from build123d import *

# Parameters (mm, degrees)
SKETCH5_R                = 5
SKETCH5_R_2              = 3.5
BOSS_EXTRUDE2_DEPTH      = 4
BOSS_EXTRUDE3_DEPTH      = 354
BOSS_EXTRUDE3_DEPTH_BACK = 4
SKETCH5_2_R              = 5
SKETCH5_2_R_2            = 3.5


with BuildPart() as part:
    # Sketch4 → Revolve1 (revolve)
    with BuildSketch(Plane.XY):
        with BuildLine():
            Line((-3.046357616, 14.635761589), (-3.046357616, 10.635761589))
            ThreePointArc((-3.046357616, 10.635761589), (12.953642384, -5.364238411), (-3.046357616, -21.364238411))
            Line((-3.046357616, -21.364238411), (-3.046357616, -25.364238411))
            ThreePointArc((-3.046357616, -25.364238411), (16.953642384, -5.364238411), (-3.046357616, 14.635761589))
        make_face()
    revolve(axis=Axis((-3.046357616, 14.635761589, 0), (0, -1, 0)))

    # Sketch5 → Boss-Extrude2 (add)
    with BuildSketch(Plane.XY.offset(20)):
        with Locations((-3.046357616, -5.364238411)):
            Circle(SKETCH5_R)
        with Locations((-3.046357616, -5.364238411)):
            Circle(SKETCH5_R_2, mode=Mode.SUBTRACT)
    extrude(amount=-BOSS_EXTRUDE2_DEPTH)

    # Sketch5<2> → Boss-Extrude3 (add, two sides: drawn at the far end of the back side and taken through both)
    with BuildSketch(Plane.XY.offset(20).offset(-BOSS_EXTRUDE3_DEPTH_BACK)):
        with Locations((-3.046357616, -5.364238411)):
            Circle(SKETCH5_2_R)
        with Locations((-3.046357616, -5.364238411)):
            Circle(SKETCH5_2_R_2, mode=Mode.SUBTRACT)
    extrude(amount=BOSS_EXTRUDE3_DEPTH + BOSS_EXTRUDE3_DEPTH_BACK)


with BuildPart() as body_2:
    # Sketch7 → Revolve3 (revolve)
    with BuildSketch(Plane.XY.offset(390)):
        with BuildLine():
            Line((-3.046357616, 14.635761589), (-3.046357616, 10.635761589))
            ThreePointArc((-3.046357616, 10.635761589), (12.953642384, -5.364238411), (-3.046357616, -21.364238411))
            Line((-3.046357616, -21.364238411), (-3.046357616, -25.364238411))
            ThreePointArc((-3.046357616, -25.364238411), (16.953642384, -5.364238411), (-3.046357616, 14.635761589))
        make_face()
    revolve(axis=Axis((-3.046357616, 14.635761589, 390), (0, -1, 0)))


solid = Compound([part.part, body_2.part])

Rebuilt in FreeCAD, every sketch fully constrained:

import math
import FreeCAD as App
import Part
import Sketcher
from FreeCAD import Vector
Q = App.Units.Quantity

doc = App.newDocument("Part")
params = doc.addObject("Spreadsheet::Sheet", "Params")
for row, (alias, value) in enumerate([
    ("sketch1_radius", "16 mm"),
    ("sketch1_radius2", "20 mm"),
    ("revolution_angle", "360 deg"),
    ("sketch2_diameter", "10 mm"),
    ("sketch2_diameter2", "7 mm"),
    ("pad1_length", "4 mm"),
    ("sketch3_diameter", "10 mm"),
    ("sketch3_diameter2", "7 mm"),
    ("pad2_length", "354 mm"),
    ("pad2_length2", "4 mm"),
    ("sketch4_radius", "16 mm"),
    ("sketch4_radius2", "20 mm"),
    ("revolution2_angle", "360 deg"),
], start=1):
    params.set(f"A{row}", alias)
    params.set(f"B{row}", "=" + value)
    params.setAlias(f"B{row}", alias)

body = doc.addObject("PartDesign::Body", "Body")

sketch1 = doc.addObject("Sketcher::SketchObject", "Sketch")
body.addObject(sketch1)
sketch1.AttachmentSupport = (doc.XY_Plane, [""])
sketch1.MapMode = "FlatFace"
sketch1.addGeometry([
    Part.LineSegment(Vector(-3.046358, 14.635762, 0), Vector(-3.046358, 10.635762, 0)),
    Part.ArcOfCircle(Part.Circle(Vector(-3.046358, -5.364238, 0), Vector(0, 0, 1), 16), math.radians(-90), math.radians(90)),
    Part.LineSegment(Vector(-3.046358, -21.364238, 0), Vector(-3.046358, -25.364238, 0)),
    Part.ArcOfCircle(Part.Circle(Vector(-3.046358, -5.364238, 0), Vector(0, 0, 1), 20), math.radians(-90), math.radians(90)),
], False)
sketch1.addGeometry(Part.LineSegment(Vector(-3.046358, 14.635762, 0), Vector(-3.046358, -25.364238, 0)), True)
sketch1.addConstraint([
    Sketcher.Constraint("Coincident", 0, 2, 1, 2),
    Sketcher.Constraint("Coincident", 1, 1, 2, 1),
    Sketcher.Constraint("Coincident", 2, 2, 3, 1),
    Sketcher.Constraint("Coincident", 3, 2, 0, 1),
    Sketcher.Constraint("Vertical", 0),
    Sketcher.Constraint("Vertical", 2),
    Sketcher.Constraint("Vertical", 4),
    Sketcher.Constraint("Coincident", 3, 3, 1, 3),
    Sketcher.Constraint("Coincident", 4, 1, 3, 2),
    Sketcher.Constraint("Coincident", 4, 2, 2, 2),
    Sketcher.Constraint("Vertical", 3, 3, 0, 2),
    Sketcher.Constraint("Radius", 1, Q("16 mm")),
    Sketcher.Constraint("Radius", 3, Q("20 mm")),
    Sketcher.Constraint("DistanceY", 1, 3, -1, 1, Q("5.364238 mm")),
    Sketcher.Constraint("DistanceX", 1, 3, -1, 1, Q("3.046358 mm")),
])
sketch1.setExpression("Constraints[11]", "Params.sketch1_radius")
sketch1.setExpression("Constraints[12]", "Params.sketch1_radius2")
revolution = doc.addObject("PartDesign::Revolution", "Revolution")
body.addObject(revolution)
revolution.Profile = sketch1
revolution.ReferenceAxis = (sketch1, ["Axis0"])
revolution.setExpression("Angle", "Params.revolution_angle")

sketch2 = doc.addObject("Sketcher::SketchObject", "Sketch001")
body.addObject(sketch2)
sketch2.AttachmentSupport = (doc.XY_Plane, [""])
sketch2.MapMode = "FlatFace"
sketch2.AttachmentOffset = App.Placement(Vector(0, 0, 20), App.Rotation())
sketch2.addGeometry([
    Part.Circle(Vector(-3.046358, -5.364238, 0), Vector(0, 0, 1), 5),
    Part.Circle(Vector(-3.046358, -5.364238, 0), Vector(0, 0, 1), 3.5),
], False)
sketch2.addConstraint([
    Sketcher.Constraint("Coincident", 1, 3, 0, 3),
    Sketcher.Constraint("Diameter", 0, Q("10 mm")),
    Sketcher.Constraint("Diameter", 1, Q("7 mm")),
    Sketcher.Constraint("DistanceY", 0, 3, -1, 1, Q("5.364238 mm")),
    Sketcher.Constraint("DistanceX", 0, 3, -1, 1, Q("3.046358 mm")),
])
sketch2.setExpression("Constraints[1]", "Params.sketch2_diameter")
sketch2.setExpression("Constraints[2]", "Params.sketch2_diameter2")
pad1 = doc.addObject("PartDesign::Pad", "Pad")
body.addObject(pad1)
pad1.Profile = sketch2
pad1.setExpression("Length", "Params.pad1_length")
pad1.Reversed = True

sketch3 = doc.addObject("Sketcher::SketchObject", "Sketch002")
body.addObject(sketch3)
sketch3.AttachmentSupport = (doc.XY_Plane, [""])
sketch3.MapMode = "FlatFace"
sketch3.AttachmentOffset = App.Placement(Vector(0, 0, 20), App.Rotation())
sketch3.addGeometry([
    Part.Circle(Vector(-3.046358, -5.364238, 0), Vector(0, 0, 1), 5),
    Part.Circle(Vector(-3.046358, -5.364238, 0), Vector(0, 0, 1), 3.5),
], False)
sketch3.addConstraint([
    Sketcher.Constraint("Coincident", 1, 3, 0, 3),
    Sketcher.Constraint("Diameter", 0, Q("10 mm")),
    Sketcher.Constraint("Diameter", 1, Q("7 mm")),
    Sketcher.Constraint("DistanceY", 0, 3, -1, 1, Q("5.364238 mm")),
    Sketcher.Constraint("DistanceX", 0, 3, -1, 1, Q("3.046358 mm")),
])
sketch3.setExpression("Constraints[1]", "Params.sketch3_diameter")
sketch3.setExpression("Constraints[2]", "Params.sketch3_diameter2")
pad2 = doc.addObject("PartDesign::Pad", "Pad001")
body.addObject(pad2)
pad2.Profile = sketch3
pad2.Type = "TwoLengths"
pad2.setExpression("Length", "Params.pad2_length")
pad2.setExpression("Length2", "Params.pad2_length2")
body2 = doc.addObject("PartDesign::Body", "Body001")

sketch4 = doc.addObject("Sketcher::SketchObject", "Sketch003")
body2.addObject(sketch4)
sketch4.AttachmentSupport = (doc.getObject("XY_Plane001"), [""])
sketch4.MapMode = "FlatFace"
sketch4.AttachmentOffset = App.Placement(Vector(0, 0, 390), App.Rotation())
sketch4.addGeometry([
    Part.LineSegment(Vector(-3.046358, 14.635762, 0), Vector(-3.046358, 10.635762, 0)),
    Part.ArcOfCircle(Part.Circle(Vector(-3.046358, -5.364238, 0), Vector(0, 0, 1), 16), math.radians(-90), math.radians(90)),
    Part.LineSegment(Vector(-3.046358, -21.364238, 0), Vector(-3.046358, -25.364238, 0)),
    Part.ArcOfCircle(Part.Circle(Vector(-3.046358, -5.364238, 0), Vector(0, 0, 1), 20), math.radians(-90), math.radians(90)),
], False)
sketch4.addGeometry(Part.LineSegment(Vector(-3.046358, 14.635762, 0), Vector(-3.046358, -25.364238, 0)), True)
sketch4.addConstraint([
    Sketcher.Constraint("Coincident", 0, 2, 1, 2),
    Sketcher.Constraint("Coincident", 1, 1, 2, 1),
    Sketcher.Constraint("Coincident", 2, 2, 3, 1),
    Sketcher.Constraint("Coincident", 3, 2, 0, 1),
    Sketcher.Constraint("Vertical", 0),
    Sketcher.Constraint("Vertical", 2),
    Sketcher.Constraint("Vertical", 4),
    Sketcher.Constraint("Coincident", 3, 3, 1, 3),
    Sketcher.Constraint("Coincident", 4, 1, 3, 2),
    Sketcher.Constraint("Coincident", 4, 2, 2, 2),
    Sketcher.Constraint("Vertical", 3, 3, 0, 2),
    Sketcher.Constraint("Radius", 1, Q("16 mm")),
    Sketcher.Constraint("Radius", 3, Q("20 mm")),
    Sketcher.Constraint("DistanceY", 1, 3, -1, 1, Q("5.364238 mm")),
    Sketcher.Constraint("DistanceX", 1, 3, -1, 1, Q("3.046358 mm")),
])
sketch4.setExpression("Constraints[11]", "Params.sketch4_radius")
sketch4.setExpression("Constraints[12]", "Params.sketch4_radius2")
revolution2 = doc.addObject("PartDesign::Revolution", "Revolution001")
body2.addObject(revolution2)
revolution2.Profile = sketch4
revolution2.ReferenceAxis = (sketch4, ["Axis0"])
revolution2.setExpression("Angle", "Params.revolution2_angle")

doc.recompute()
